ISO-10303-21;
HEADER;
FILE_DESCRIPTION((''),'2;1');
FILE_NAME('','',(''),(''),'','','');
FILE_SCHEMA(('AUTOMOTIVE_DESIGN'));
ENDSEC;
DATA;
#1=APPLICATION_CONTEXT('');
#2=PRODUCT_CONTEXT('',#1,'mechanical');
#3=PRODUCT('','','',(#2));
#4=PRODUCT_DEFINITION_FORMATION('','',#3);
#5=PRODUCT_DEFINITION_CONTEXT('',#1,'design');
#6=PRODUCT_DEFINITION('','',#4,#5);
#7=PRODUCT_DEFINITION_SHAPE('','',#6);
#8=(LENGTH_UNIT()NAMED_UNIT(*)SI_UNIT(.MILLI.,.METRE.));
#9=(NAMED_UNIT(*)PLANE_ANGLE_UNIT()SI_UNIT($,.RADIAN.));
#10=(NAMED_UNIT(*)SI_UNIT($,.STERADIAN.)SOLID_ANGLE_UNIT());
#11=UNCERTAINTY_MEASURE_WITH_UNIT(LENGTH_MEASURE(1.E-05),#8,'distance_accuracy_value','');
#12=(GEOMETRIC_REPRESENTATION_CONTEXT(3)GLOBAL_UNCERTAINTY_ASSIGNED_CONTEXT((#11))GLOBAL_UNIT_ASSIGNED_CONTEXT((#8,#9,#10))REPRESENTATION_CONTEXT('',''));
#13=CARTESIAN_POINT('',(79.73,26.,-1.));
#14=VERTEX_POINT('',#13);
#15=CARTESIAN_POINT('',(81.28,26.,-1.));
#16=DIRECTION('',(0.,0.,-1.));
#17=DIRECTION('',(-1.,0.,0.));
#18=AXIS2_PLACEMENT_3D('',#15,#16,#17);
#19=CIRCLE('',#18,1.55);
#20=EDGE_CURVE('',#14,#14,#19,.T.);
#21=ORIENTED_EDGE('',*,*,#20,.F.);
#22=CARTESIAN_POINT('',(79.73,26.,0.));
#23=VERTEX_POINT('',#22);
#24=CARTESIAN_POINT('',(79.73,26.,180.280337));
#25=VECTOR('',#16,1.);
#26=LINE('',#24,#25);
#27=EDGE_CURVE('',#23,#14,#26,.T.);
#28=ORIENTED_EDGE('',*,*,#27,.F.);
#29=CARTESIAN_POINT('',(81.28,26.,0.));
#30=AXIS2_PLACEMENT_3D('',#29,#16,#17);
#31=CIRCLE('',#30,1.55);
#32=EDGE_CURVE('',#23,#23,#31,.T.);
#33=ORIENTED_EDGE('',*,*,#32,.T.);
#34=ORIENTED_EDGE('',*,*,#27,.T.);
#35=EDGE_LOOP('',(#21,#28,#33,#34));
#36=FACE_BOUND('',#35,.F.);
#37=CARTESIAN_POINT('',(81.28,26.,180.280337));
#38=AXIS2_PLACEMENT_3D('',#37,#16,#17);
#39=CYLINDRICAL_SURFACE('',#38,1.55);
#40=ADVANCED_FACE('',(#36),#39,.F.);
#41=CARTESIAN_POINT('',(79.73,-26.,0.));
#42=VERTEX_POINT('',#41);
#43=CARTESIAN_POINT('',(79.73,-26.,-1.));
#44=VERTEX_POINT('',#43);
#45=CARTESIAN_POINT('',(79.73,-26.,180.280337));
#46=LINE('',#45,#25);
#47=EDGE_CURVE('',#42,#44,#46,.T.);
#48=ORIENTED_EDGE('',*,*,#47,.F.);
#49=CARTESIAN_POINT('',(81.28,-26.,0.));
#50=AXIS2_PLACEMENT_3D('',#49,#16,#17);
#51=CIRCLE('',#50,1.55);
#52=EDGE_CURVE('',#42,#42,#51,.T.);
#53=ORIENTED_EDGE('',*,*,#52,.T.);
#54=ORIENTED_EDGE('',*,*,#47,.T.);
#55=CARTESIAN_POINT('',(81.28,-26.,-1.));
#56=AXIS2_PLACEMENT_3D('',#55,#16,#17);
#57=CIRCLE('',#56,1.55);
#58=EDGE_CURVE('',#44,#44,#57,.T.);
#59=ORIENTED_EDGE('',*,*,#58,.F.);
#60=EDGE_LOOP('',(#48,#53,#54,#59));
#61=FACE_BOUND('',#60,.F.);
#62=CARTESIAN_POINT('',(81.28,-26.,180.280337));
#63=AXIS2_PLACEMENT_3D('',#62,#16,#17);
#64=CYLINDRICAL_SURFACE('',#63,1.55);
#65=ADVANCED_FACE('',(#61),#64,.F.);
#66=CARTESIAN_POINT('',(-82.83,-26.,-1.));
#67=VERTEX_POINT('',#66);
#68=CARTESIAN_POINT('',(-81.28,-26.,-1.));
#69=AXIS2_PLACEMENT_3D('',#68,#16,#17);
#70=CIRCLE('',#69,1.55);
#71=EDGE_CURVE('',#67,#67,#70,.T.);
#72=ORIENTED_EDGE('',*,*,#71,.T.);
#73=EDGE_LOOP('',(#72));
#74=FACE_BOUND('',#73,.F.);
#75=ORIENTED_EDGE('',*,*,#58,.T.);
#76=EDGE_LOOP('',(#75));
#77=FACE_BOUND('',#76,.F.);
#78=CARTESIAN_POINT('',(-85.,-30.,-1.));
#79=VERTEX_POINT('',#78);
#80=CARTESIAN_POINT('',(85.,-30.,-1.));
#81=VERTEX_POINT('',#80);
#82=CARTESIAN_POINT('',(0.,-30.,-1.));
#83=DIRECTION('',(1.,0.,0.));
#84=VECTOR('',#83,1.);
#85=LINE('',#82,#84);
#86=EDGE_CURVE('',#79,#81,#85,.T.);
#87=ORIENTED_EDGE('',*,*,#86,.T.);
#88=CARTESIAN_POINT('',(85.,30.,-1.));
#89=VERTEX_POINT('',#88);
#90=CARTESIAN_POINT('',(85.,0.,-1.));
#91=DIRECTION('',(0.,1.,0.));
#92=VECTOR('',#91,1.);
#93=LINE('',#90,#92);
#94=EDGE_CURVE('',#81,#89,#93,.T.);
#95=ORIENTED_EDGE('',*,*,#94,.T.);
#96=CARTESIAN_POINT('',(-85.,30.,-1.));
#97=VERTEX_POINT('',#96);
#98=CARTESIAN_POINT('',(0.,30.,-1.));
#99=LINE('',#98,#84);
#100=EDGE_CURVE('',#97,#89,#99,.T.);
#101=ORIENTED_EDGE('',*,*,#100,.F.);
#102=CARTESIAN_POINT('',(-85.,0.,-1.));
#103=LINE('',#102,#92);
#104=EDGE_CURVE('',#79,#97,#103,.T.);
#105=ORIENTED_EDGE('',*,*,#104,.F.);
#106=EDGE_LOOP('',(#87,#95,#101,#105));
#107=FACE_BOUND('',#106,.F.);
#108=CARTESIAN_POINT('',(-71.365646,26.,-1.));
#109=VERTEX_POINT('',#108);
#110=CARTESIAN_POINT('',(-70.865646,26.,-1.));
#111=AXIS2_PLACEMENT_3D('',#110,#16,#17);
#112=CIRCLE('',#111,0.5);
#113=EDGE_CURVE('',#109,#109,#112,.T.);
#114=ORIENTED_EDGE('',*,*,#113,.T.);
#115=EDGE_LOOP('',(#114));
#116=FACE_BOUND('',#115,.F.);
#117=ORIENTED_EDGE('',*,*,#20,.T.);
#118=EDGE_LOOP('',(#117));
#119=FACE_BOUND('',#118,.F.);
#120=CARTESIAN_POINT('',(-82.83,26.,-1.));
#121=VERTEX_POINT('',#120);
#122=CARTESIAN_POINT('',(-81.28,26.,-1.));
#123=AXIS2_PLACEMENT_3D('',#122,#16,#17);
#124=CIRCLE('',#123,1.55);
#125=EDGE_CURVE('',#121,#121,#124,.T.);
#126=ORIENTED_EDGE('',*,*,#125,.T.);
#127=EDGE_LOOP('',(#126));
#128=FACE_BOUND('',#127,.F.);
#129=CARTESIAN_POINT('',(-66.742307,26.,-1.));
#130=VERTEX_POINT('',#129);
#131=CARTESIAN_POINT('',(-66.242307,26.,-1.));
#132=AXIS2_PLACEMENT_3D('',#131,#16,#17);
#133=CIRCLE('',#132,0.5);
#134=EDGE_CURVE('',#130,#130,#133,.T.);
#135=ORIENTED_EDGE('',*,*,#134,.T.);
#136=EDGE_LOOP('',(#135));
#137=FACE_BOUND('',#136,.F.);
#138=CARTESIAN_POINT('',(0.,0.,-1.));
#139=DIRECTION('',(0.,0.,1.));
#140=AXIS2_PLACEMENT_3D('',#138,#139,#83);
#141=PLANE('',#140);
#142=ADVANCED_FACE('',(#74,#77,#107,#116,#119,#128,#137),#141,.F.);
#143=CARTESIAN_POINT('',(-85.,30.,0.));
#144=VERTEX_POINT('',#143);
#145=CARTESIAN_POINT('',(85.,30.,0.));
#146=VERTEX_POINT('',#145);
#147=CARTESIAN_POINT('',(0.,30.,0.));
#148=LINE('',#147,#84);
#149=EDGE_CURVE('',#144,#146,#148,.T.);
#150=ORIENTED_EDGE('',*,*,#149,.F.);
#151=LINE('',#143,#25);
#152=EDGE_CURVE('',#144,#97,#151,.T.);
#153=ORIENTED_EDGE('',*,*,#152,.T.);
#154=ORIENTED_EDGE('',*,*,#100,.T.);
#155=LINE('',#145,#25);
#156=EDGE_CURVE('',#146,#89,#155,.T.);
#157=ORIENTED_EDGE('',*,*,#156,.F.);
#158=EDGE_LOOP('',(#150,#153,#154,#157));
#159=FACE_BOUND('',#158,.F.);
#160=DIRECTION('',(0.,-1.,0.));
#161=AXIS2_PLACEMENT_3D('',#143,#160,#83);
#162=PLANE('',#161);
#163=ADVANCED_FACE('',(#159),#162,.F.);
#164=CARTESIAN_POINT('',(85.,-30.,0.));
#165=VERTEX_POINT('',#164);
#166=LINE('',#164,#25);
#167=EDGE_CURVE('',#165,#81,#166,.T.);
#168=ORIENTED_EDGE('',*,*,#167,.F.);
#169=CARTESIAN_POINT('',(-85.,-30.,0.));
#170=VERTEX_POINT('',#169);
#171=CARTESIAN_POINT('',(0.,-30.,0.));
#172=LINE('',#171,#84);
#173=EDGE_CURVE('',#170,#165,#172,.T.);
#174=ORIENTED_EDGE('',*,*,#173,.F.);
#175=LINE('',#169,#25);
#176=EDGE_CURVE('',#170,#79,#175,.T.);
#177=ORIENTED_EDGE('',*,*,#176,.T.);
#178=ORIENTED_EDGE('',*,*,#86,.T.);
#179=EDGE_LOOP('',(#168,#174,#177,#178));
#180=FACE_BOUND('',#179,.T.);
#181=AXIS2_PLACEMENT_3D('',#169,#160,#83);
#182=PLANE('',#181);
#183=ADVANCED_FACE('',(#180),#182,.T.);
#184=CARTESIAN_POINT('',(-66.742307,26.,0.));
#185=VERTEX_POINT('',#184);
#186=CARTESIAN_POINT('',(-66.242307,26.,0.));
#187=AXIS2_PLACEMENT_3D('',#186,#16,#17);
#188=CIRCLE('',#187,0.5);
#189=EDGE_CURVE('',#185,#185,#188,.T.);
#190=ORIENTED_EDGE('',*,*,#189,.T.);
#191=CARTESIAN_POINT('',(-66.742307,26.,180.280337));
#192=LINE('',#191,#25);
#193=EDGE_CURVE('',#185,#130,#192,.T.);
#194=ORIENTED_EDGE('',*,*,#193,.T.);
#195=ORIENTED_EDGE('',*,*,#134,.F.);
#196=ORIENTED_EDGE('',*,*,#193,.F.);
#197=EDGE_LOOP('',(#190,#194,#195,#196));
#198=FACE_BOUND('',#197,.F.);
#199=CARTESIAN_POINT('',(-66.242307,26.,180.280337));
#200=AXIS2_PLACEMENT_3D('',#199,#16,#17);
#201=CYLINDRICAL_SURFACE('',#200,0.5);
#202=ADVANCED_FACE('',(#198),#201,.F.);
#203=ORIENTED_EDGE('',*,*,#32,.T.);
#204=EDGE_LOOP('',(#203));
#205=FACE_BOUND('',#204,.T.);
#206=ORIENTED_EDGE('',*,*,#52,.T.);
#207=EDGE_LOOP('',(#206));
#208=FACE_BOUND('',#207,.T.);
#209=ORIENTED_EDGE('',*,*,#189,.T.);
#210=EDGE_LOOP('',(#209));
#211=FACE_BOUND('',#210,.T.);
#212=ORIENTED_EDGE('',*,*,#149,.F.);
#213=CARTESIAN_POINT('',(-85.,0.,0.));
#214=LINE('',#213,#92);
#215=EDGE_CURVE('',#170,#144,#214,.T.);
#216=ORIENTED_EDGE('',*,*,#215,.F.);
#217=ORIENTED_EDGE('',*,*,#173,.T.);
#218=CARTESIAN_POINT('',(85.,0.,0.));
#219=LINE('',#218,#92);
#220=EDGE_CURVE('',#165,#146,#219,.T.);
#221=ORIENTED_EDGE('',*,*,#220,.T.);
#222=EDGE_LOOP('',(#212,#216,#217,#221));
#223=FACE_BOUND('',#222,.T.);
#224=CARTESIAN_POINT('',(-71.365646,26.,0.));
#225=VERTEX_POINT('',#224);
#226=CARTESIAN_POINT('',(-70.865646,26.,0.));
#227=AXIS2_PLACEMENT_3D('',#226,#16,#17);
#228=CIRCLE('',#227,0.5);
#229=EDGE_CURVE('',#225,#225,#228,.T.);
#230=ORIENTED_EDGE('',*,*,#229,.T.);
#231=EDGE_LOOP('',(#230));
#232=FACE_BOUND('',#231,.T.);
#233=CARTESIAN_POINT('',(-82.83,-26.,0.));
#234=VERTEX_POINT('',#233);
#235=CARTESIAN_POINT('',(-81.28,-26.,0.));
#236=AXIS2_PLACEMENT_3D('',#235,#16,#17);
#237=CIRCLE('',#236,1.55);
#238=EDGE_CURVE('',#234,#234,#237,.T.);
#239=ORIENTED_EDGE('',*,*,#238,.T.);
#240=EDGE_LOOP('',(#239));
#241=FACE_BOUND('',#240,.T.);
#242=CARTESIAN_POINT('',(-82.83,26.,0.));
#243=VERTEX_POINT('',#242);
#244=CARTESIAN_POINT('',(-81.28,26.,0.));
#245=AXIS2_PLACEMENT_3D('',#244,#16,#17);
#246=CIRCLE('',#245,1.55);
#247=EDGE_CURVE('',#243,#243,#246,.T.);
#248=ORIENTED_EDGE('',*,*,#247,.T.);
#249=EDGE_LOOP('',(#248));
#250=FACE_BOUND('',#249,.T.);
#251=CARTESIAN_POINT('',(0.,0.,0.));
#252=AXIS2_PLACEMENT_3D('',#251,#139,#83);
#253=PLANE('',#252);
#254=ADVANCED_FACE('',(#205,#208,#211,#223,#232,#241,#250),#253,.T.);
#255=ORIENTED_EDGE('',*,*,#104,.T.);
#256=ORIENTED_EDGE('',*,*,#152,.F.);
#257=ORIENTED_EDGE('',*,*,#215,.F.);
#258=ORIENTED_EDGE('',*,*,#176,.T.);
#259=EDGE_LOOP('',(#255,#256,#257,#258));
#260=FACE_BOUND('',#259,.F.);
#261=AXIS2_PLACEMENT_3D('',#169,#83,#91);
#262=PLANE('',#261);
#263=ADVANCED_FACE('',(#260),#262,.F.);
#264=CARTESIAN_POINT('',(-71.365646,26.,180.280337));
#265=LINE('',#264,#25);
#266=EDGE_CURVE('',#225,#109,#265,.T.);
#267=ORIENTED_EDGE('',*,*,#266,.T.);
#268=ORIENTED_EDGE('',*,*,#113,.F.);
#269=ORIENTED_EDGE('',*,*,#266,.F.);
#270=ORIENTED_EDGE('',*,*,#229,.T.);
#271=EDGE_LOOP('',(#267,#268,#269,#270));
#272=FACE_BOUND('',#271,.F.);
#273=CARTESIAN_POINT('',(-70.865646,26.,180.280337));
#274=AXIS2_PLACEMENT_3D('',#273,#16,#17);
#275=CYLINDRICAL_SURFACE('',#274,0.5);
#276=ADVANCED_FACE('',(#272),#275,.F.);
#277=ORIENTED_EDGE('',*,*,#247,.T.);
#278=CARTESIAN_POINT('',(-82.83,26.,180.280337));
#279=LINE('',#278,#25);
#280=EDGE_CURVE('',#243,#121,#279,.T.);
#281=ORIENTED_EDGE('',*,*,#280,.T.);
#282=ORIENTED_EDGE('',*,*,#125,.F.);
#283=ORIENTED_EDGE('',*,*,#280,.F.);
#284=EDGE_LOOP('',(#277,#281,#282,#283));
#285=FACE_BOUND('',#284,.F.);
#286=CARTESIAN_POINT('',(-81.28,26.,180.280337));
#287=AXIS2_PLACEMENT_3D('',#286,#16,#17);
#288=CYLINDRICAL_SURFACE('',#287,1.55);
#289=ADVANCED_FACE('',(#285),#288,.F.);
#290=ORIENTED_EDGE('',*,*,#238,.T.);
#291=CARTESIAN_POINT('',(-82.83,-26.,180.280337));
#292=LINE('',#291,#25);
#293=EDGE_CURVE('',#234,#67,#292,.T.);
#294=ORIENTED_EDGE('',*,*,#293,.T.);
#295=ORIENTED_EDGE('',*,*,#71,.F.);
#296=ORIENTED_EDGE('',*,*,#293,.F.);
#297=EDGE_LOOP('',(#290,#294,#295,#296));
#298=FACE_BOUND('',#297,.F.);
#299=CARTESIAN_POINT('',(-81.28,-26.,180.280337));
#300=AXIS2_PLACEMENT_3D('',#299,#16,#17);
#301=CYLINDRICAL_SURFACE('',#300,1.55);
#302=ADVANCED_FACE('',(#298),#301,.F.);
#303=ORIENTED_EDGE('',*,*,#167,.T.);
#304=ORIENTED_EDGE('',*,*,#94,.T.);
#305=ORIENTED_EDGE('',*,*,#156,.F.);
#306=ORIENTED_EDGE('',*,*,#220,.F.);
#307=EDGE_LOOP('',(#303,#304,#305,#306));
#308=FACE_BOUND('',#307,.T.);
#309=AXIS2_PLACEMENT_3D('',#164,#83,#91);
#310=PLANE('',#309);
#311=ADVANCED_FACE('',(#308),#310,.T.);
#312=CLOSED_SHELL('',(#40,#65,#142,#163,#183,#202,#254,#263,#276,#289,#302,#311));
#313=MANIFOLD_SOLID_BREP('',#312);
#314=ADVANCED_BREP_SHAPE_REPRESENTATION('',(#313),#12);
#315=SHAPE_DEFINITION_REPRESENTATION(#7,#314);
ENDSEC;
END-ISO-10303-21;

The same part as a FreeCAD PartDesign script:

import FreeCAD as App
import Part
import Sketcher

V = App.Vector


def add_polygon(sketch, points):
    """Adds a closed chain of lines whose ends are joined by coincident constraints."""
    first, n = sketch.GeometryCount, len(points)
    for a, b in zip(points, points[1:] + points[:1]):
        sketch.addGeometry(Part.LineSegment(App.Vector(*a, 0), App.Vector(*b, 0)), False)
    for i in range(n):
        sketch.addConstraint(Sketcher.Constraint("Coincident", first + i, 2, first + (i + 1) % n, 1))

doc = App.newDocument("Part")
body = doc.addObject("PartDesign::Body", "Body")

# Sketch on XY plane
sketch1 = body.newObject("Sketcher::SketchObject", "Sketch")
sketch1.AttachmentSupport = (doc.getObject("XY_Plane"), [""])
sketch1.MapMode = "FlatFace"
add_polygon(sketch1, [(-85, 30), (-85, -30), (85, -30), (85, 30)])  # lines 0-3
sketch1.addConstraint(Sketcher.Constraint("Vertical", 0))
sketch1.addConstraint(Sketcher.Constraint("Horizontal", 1))
sketch1.addConstraint(Sketcher.Constraint("Vertical", 2))
sketch1.addConstraint(Sketcher.Constraint("Horizontal", 3))
sketch1.addConstraint(Sketcher.Constraint("Symmetric", 0, 2, 2, 2, -1, 1))
sketch1.addConstraint(Sketcher.Constraint("DistanceX", 1, 1, 1, 2, 170.0))
sketch1.addConstraint(Sketcher.Constraint("DistanceY", 0, 2, 0, 1, 60.0))
pad1 = body.newObject("PartDesign::Pad", "Pad")
pad1.Profile = sketch1
pad1.Length = 1
pad1.Reversed = True

# Sketch on XY plane
sketch2 = body.newObject("Sketcher::SketchObject", "Sketch001")
sketch2.AttachmentSupport = (doc.getObject("XY_Plane"), [""])
sketch2.MapMode = "FlatFace"
sketch2.addGeometry(Part.Circle(V(-81.3, 26, 0), V(0, 0, 1), 1.6), False)
sketch2.addGeometry(Part.Circle(V(-81.3, -26, 0), V(0, 0, 1), 1.6), False)
sketch2.addGeometry(Part.Circle(V(81.3, 26, 0), V(0, 0, 1), 1.6), False)
sketch2.addGeometry(Part.Circle(V(81.3, -26, 0), V(0, 0, 1), 1.6), False)
sketch2.addConstraint(Sketcher.Constraint("Equal", 0, 1))
sketch2.addConstraint(Sketcher.Constraint("Equal", 1, 2))
sketch2.addConstraint(Sketcher.Constraint("Equal", 2, 3))
sketch2.addConstraint(Sketcher.Constraint("Symmetric", 1, 3, 2, 3, -1, 1))
sketch2.addConstraint(Sketcher.Constraint("Symmetric", 0, 3, 3, 3, -1, 1))
sketch2.addConstraint(Sketcher.Constraint("Symmetric", 0, 3, 2, 3, -2))
sketch2.addConstraint(Sketcher.Constraint("Diameter", 0, 3.1))
sketch2.addConstraint(Sketcher.Constraint("DistanceY", -1, 1, 0, 3, 26.0))
sketch2.addConstraint(Sketcher.Constraint("DistanceX", 0, 3, -1, 1, 81.28))
doc.recompute()
hole = body.newObject("PartDesign::Hole", "Hole")
hole.Profile = sketch2
hole.ThreadType = "None"
hole.Diameter = 3.1
hole.DepthType = "ThroughAll"

# Sketch on XY plane
sketch3 = body.newObject("Sketcher::SketchObject", "Sketch002")
sketch3.AttachmentSupport = (doc.getObject("XY_Plane"), [""])
sketch3.MapMode = "FlatFace"
sketch3.addGeometry(Part.Circle(V(-70.9, 26, 0), V(0, 0, 1), 0.5), False)
sketch3.addGeometry(Part.Circle(V(-66.2, 26, 0), V(0, 0, 1), 0.5), False)
sketch3.addConstraint(Sketcher.Constraint("Equal", 0, 1))
sketch3.addConstraint(Sketcher.Constraint("Horizontal", 0, 3, 1, 3))
sketch3.addConstraint(Sketcher.Constraint("Diameter", 0, 1.0))
sketch3.addConstraint(Sketcher.Constraint("DistanceY", -1, 1, 0, 3, 26.0))
sketch3.addConstraint(Sketcher.Constraint("DistanceX", 0, 3, 1, 3, 4.623339))
sketch3.addConstraint(Sketcher.Constraint("DistanceX", 0, 3, -1, 1, 70.865646))
doc.recompute()
hole2 = body.newObject("PartDesign::Hole", "Hole001")
hole2.Profile = sketch3
hole2.ThreadType = "None"
hole2.Diameter = 1
hole2.DepthType = "ThroughAll"

doc.recompute()
